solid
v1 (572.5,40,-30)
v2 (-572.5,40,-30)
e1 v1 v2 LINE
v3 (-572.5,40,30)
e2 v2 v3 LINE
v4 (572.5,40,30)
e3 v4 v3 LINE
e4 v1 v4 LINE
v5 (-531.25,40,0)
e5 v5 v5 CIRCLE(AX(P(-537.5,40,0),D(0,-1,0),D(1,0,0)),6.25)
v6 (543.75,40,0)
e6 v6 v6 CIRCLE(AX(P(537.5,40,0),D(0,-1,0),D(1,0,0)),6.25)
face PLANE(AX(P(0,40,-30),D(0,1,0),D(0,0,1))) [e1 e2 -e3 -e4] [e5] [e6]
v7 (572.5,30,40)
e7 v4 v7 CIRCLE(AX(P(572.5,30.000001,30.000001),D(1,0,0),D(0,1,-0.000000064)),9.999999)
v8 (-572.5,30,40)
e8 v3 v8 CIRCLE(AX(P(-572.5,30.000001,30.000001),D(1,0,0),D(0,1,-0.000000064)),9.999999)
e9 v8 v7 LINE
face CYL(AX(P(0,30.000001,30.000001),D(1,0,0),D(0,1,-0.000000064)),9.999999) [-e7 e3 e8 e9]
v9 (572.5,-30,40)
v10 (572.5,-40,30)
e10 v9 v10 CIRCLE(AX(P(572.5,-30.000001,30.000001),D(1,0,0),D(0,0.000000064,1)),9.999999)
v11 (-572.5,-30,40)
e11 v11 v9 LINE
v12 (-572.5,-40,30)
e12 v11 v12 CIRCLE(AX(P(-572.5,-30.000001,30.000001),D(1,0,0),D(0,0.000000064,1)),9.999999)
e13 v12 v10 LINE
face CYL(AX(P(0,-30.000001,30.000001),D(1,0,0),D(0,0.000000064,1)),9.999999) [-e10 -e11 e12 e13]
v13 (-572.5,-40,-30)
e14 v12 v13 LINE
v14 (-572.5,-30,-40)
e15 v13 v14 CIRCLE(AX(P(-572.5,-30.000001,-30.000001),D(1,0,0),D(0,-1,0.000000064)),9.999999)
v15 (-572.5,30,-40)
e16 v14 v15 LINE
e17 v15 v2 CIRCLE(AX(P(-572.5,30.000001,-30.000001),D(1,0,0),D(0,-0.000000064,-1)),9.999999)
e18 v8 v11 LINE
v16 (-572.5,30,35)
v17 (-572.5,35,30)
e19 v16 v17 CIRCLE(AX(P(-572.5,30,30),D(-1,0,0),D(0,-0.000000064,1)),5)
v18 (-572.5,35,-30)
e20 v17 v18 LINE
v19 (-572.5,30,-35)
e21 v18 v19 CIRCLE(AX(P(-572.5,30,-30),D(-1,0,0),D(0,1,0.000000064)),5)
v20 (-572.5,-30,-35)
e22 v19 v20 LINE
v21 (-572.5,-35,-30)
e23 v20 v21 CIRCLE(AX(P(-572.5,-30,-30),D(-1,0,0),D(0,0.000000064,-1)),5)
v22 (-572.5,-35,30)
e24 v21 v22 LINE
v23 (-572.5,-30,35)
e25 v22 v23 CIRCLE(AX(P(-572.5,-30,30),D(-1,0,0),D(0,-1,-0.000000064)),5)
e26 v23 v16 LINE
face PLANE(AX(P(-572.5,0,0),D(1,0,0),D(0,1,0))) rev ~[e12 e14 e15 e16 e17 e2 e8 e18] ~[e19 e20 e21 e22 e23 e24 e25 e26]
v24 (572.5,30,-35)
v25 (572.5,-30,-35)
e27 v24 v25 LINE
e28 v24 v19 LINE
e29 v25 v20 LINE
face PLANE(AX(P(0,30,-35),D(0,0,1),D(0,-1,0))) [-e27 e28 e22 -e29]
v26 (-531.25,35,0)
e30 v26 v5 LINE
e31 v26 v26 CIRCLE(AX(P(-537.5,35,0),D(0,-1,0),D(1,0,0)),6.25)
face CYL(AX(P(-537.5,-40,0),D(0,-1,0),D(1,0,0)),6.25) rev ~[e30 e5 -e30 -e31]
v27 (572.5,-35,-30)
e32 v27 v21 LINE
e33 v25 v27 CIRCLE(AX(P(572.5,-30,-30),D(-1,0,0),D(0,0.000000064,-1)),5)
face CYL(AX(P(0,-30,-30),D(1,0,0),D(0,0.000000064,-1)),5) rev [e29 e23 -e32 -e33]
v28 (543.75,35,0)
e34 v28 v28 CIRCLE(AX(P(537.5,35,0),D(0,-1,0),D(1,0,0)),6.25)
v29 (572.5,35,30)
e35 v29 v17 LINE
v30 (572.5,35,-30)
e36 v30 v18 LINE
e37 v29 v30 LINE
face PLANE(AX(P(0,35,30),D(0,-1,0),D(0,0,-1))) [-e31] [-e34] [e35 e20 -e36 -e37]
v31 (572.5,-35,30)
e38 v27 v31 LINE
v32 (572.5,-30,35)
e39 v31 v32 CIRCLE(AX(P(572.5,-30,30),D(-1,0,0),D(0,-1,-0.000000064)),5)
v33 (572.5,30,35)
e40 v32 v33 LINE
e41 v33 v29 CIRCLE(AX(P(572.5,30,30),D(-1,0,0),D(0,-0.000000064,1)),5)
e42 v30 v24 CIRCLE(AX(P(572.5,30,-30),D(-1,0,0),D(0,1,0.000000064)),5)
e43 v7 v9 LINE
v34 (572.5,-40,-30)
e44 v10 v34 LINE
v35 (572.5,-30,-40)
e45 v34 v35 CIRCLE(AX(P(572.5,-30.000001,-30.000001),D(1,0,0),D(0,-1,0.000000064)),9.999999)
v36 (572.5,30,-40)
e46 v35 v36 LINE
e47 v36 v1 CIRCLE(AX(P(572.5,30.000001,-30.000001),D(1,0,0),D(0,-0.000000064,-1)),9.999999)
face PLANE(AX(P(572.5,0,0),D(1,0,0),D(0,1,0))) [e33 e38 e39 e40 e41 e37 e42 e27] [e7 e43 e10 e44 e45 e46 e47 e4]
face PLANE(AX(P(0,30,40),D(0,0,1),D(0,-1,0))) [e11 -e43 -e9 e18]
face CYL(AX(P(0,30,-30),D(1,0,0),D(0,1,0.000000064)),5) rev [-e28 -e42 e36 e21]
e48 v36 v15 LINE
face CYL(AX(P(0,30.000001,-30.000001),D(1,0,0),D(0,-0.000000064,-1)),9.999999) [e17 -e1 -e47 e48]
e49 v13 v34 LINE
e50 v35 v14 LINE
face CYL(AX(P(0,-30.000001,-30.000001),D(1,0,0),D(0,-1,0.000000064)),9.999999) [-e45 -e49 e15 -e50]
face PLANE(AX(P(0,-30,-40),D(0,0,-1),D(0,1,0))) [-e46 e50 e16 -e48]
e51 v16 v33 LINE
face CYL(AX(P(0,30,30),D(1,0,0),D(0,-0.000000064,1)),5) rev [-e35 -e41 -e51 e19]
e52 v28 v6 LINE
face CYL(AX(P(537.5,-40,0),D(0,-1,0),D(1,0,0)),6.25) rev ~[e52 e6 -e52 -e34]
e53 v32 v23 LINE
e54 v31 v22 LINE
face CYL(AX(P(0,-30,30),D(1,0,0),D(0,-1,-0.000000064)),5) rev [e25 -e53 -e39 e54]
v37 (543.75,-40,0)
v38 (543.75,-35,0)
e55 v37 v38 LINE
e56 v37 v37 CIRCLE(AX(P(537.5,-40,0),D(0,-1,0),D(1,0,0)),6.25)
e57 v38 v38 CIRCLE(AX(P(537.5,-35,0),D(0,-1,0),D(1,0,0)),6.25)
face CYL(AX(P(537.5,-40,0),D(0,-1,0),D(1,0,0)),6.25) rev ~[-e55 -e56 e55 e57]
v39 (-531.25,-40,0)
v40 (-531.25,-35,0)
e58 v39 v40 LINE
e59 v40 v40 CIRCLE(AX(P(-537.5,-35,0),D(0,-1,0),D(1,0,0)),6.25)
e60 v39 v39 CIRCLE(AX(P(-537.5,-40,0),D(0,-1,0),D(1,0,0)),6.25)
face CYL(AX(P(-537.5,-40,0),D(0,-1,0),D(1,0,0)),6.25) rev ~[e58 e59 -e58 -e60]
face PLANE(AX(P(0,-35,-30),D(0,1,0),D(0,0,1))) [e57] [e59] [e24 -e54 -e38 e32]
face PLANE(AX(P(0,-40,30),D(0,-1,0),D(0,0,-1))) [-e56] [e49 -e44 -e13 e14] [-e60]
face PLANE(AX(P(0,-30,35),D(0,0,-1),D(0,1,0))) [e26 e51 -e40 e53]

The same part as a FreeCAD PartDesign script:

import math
import FreeCAD as App
import Part
import Sketcher

V = App.Vector
Q = App.Units.Quantity

doc = App.newDocument("Part")
body = doc.addObject("PartDesign::Body", "Body")

# Sketch on YZ plane
sketch1 = doc.addObject("Sketcher::SketchObject", "Sketch")
body.addObject(sketch1)
sketch1.AttachmentSupport = (doc.YZ_Plane, [""])
sketch1.MapMode = "FlatFace"
sketch1.addGeometry(Part.ArcOfCircle(Part.Circle(V(30, 30, 0), V(0, 0, 1), 10), math.radians(0), math.radians(90)), False)
sketch1.addGeometry(Part.LineSegment(V(30, 40, 0), V(-30, 40, 0)), False)
sketch1.addGeometry(Part.ArcOfCircle(Part.Circle(V(-30, 30, 0), V(0, 0, 1), 10), math.radians(90), math.radians(180)), False)
sketch1.addGeometry(Part.LineSegment(V(-40, 30, 0), V(-40, -30, 0)), False)
sketch1.addGeometry(Part.ArcOfCircle(Part.Circle(V(-30, -30, 0), V(0, 0, 1), 10), math.radians(180), math.radians(270)), False)
sketch1.addGeometry(Part.LineSegment(V(-30, -40, 0), V(30, -40, 0)), False)
sketch1.addGeometry(Part.ArcOfCircle(Part.Circle(V(30, -30, 0), V(0, 0, 1), 10), math.radians(-90), math.radians(0)), False)
sketch1.addGeometry(Part.LineSegment(V(40, -30, 0), V(40, 30, 0)), False)
sketch1.addGeometry(Part.LineSegment(V(-30, 35, 0), V(30, 35, 0)), False)
sketch1.addGeometry(Part.ArcOfCircle(Part.Circle(V(30, 30, 0), V(0, 0, 1), 5), math.radians(0), math.radians(90)), False)
sketch1.addGeometry(Part.LineSegment(V(35, 30, 0), V(35, -30, 0)), False)
sketch1.addGeometry(Part.ArcOfCircle(Part.Circle(V(30, -30, 0), V(0, 0, 1), 5), math.radians(-90), math.radians(0)), False)
sketch1.addGeometry(Part.LineSegment(V(30, -35, 0), V(-30, -35, 0)), False)
sketch1.addGeometry(Part.ArcOfCircle(Part.Circle(V(-30, -30, 0), V(0, 0, 1), 5), math.radians(180), math.radians(270)), False)
sketch1.addGeometry(Part.LineSegment(V(-35, -30, 0), V(-35, 30, 0)), False)
sketch1.addGeometry(Part.ArcOfCircle(Part.Circle(V(-30, 30, 0), V(0, 0, 1), 5), math.radians(90), math.radians(180)), False)
sketch1.addConstraint(Sketcher.Constraint("Tangent", 0, 2, 1, 1))
sketch1.addConstraint(Sketcher.Constraint("Tangent", 1, 2, 2, 1))
sketch1.addConstraint(Sketcher.Constraint("Tangent", 2, 2, 3, 1))
sketch1.addConstraint(Sketcher.Constraint("Tangent", 3, 2, 4, 1))
sketch1.addConstraint(Sketcher.Constraint("Tangent", 4, 2, 5, 1))
sketch1.addConstraint(Sketcher.Constraint("Tangent", 5, 2, 6, 1))
sketch1.addConstraint(Sketcher.Constraint("Tangent", 6, 2, 7, 1))
sketch1.addConstraint(Sketcher.Constraint("Tangent", 7, 2, 0, 1))
sketch1.addConstraint(Sketcher.Constraint("Tangent", 8, 2, 9, 2))
sketch1.addConstraint(Sketcher.Constraint("Tangent", 9, 1, 10, 1))
sketch1.addConstraint(Sketcher.Constraint("Tangent", 10, 2, 11, 2))
sketch1.addConstraint(Sketcher.Constraint("Tangent", 11, 1, 12, 1))
sketch1.addConstraint(Sketcher.Constraint("Tangent", 12, 2, 13, 2))
sketch1.addConstraint(Sketcher.Constraint("Tangent", 13, 1, 14, 1))
sketch1.addConstraint(Sketcher.Constraint("Tangent", 14, 2, 15, 2))
sketch1.addConstraint(Sketcher.Constraint("Tangent", 15, 1, 8, 1))
sketch1.addConstraint(Sketcher.Constraint("Horizontal", 1))
sketch1.addConstraint(Sketcher.Constraint("Vertical", 3))
sketch1.addConstraint(Sketcher.Constraint("Horizontal", 5))
sketch1.addConstraint(Sketcher.Constraint("Vertical", 7))
sketch1.addConstraint(Sketcher.Constraint("Horizontal", 8))
sketch1.addConstraint(Sketcher.Constraint("Vertical", 10))
sketch1.addConstraint(Sketcher.Constraint("Horizontal", 12))
sketch1.addConstraint(Sketcher.Constraint("Vertical", 14))
sketch1.addConstraint(Sketcher.Constraint("Coincident", 9, 3, 0, 3))
sketch1.addConstraint(Sketcher.Constraint("Coincident", 11, 3, 6, 3))
sketch1.addConstraint(Sketcher.Constraint("Coincident", 13, 3, 4, 3))
sketch1.addConstraint(Sketcher.Constraint("Equal", 0, 2))
sketch1.addConstraint(Sketcher.Constraint("Equal", 2, 4))
sketch1.addConstraint(Sketcher.Constraint("Equal", 4, 6))
sketch1.addConstraint(Sketcher.Constraint("Equal", 13, 15))
sketch1.addConstraint(Sketcher.Constraint("Symmetric", 0, 3, 4, 3, -1, 1))
sketch1.addConstraint(Sketcher.Constraint("Equal", 12, 3))
sketch1.addConstraint(Sketcher.Constraint("Radius", 0, Q("9.999999 mm")))
sketch1.addConstraint(Sketcher.Constraint("Radius", 9, Q("5 mm")))
sketch1.addConstraint(Sketcher.Constraint("DistanceX", 1, 2, 1, 1, Q("60 mm")))
pad1 = doc.addObject("PartDesign::Pad", "Pad")
body.addObject(pad1)
pad1.Profile = sketch1
pad1.Length = 1145
pad1.Midplane = True

# Sketch on XZ plane
sketch2 = doc.addObject("Sketcher::SketchObject", "Sketch001")
body.addObject(sketch2)
sketch2.AttachmentSupport = (doc.XZ_Plane, [""])
sketch2.MapMode = "FlatFace"
sketch2.AttachmentOffset = App.Placement(V(0, 0, 40), App.Rotation())
sketch2.addGeometry(Part.Circle(V(538, 0, 0), V(0, 0, 1), 6), False)
sketch2.addGeometry(Part.Circle(V(-538, 0, 0), V(0, 0, 1), 6), False)
sketch2.addConstraint(Sketcher.Constraint("Equal", 0, 1))
sketch2.addConstraint(Sketcher.Constraint("Symmetric", 0, 3, 1, 3, -1, 1))
sketch2.addConstraint(Sketcher.Constraint("PointOnObject", 0, 3, -1))
sketch2.addConstraint(Sketcher.Constraint("Diameter", 0, Q("12.5 mm")))
sketch2.addConstraint(Sketcher.Constraint("DistanceX", 1, 3, 0, 3, Q("1075 mm")))
pocket1 = doc.addObject("PartDesign::Pocket", "Pocket")
body.addObject(pocket1)
pocket1.Profile = sketch2
pocket1.Type = "ThroughAll"

doc.recompute()
